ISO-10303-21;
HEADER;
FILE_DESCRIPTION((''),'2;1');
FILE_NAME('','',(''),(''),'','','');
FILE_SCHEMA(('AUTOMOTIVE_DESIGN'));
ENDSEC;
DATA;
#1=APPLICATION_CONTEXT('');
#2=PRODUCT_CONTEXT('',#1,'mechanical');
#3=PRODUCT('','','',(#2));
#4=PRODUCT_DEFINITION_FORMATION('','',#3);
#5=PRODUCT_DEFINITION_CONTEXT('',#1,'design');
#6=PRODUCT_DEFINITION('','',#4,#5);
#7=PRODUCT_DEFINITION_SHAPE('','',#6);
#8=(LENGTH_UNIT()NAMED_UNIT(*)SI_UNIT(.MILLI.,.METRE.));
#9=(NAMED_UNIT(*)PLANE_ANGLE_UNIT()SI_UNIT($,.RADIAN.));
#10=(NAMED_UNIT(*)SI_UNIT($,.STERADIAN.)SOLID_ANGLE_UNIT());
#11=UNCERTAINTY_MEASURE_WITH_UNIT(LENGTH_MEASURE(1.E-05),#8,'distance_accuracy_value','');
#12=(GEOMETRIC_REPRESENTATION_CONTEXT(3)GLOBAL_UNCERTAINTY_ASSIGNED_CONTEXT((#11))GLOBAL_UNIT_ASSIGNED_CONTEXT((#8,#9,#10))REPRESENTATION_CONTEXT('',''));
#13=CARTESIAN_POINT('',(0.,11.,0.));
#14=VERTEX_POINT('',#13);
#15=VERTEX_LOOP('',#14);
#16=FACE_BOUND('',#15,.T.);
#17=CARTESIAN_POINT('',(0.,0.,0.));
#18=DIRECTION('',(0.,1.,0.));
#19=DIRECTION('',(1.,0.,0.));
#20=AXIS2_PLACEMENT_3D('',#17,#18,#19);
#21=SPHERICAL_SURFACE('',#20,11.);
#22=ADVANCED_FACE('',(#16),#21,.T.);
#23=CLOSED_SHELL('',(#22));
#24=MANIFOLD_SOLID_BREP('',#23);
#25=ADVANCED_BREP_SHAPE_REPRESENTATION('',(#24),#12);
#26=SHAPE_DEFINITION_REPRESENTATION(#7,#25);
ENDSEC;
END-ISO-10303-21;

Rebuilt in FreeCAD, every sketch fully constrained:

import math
import FreeCAD as App
import Part
import Sketcher

V = App.Vector
Q = App.Units.Quantity

doc = App.newDocument("Part")
params = doc.addObject("Spreadsheet::Sheet", "Params")
for row, (alias, value) in enumerate([
    ("sketch1_radius", "11 mm"),
    ("revolution_angle", "360 deg"),
], start=1):
    params.set(f"A{row}", alias)
    params.set(f"B{row}", "=" + value)
    params.setAlias(f"B{row}", alias)

body = doc.addObject("PartDesign::Body", "Body")

# Sketch on XY plane
sketch1 = body.newObject("Sketcher::SketchObject", "Sketch")
sketch1.AttachmentSupport = (doc.getObject("XY_Plane"), [""])
sketch1.MapMode = "FlatFace"
sketch1.addGeometry([
    Part.LineSegment(V(0, -11, 0), V(0, 11, 0)),
    Part.ArcOfCircle(Part.Circle(V(0, 0, 0), V(0, 0, 1), 11), math.radians(90), math.radians(270)),
], False)
sketch1.addConstraint([
    Sketcher.Constraint("Coincident", 0, 1, 1, 2),
    Sketcher.Constraint("Coincident", 1, 1, 0, 2),
    Sketcher.Constraint("Vertical", 0),
    Sketcher.Constraint("Coincident", 1, 3, -1, 1),
    Sketcher.Constraint("PointOnObject", 0, 1, -2),
    Sketcher.Constraint("Radius", 1, Q("11 mm")),
])
sketch1.setExpression("Constraints[5]", "Params.sketch1_radius")
revolution = body.newObject("PartDesign::Revolution", "Revolution")
revolution.Profile = sketch1
revolution.ReferenceAxis = (sketch1, ["V_Axis"])
revolution.setExpression("Angle", "Params.revolution_angle")

doc.recompute()
